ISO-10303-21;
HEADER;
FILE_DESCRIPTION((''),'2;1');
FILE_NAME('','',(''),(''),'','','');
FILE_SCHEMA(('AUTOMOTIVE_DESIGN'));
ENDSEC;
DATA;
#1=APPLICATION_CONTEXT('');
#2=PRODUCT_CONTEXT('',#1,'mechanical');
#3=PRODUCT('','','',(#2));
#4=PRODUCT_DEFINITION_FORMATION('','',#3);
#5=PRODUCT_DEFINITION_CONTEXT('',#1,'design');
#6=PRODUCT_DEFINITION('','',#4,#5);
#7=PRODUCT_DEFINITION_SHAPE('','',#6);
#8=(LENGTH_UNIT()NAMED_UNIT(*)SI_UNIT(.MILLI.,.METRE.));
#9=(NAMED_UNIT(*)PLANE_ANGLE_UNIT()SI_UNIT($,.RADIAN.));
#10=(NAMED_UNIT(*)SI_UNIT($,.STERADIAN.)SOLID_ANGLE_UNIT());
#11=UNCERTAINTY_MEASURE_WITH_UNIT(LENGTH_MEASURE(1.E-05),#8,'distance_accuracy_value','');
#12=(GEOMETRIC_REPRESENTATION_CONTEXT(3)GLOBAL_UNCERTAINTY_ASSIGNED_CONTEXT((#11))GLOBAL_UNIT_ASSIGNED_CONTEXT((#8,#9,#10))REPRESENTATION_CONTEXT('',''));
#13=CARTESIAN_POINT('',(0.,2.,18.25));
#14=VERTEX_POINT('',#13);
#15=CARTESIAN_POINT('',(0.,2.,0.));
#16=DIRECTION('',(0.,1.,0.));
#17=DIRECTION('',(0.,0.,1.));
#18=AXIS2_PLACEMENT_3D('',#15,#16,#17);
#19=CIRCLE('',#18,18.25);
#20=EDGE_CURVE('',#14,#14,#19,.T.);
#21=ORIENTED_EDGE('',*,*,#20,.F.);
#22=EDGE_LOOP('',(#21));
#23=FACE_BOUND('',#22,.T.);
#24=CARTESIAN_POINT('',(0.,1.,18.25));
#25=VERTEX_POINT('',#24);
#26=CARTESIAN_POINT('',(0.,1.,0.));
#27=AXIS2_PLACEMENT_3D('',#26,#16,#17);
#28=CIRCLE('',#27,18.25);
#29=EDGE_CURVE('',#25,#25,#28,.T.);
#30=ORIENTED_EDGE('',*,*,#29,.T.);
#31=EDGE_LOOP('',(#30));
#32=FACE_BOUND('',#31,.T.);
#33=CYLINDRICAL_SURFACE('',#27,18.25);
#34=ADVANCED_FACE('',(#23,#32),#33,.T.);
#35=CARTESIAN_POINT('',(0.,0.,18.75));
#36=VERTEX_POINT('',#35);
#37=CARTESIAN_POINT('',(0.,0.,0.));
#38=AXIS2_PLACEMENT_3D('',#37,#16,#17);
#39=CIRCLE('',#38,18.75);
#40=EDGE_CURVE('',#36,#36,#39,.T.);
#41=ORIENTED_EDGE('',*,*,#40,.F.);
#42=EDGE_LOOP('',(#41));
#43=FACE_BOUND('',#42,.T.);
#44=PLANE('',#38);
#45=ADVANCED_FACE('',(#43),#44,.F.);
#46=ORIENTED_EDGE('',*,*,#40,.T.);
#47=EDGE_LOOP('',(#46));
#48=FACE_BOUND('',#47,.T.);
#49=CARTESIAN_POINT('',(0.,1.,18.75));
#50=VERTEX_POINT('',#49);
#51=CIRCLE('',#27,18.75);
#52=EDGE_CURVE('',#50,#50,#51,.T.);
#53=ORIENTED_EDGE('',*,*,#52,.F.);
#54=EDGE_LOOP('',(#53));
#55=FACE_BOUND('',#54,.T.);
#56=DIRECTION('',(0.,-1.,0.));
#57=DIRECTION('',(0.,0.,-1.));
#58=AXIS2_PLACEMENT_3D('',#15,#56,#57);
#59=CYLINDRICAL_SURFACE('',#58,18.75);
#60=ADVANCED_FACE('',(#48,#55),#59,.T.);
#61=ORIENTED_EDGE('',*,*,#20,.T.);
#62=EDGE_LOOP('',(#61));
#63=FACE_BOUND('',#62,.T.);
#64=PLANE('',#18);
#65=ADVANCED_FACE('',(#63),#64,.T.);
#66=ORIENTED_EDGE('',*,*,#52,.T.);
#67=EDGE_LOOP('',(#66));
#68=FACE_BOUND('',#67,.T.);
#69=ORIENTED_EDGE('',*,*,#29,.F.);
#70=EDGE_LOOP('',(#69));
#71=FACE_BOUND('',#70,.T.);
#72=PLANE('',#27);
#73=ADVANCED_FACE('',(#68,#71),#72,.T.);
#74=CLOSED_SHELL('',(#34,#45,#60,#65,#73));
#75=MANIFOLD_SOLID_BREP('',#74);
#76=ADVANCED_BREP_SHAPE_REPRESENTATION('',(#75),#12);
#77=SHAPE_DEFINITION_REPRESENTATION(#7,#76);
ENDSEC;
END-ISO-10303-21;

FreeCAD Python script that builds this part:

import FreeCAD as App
import Part
import Sketcher
from FreeCAD import Vector
Q = App.Units.Quantity

doc = App.newDocument("Part")
body = doc.addObject("PartDesign::Body", "Body")

sketch1 = body.newObject("Sketcher::SketchObject", "Sketch")
sketch1.AttachmentSupport = (doc.getObject("XZ_Plane"), [""])
sketch1.MapMode = "FlatFace"
sketch1.addGeometry(Part.Circle(Vector(0, 0, 0), Vector(0, 0, 1), 18.75), False)
sketch1.addConstraint(Sketcher.Constraint("Coincident", 0, 3, -1, 1))
sketch1.addConstraint(Sketcher.Constraint("Diameter", 0, Q("37.5 mm")))
pad1 = body.newObject("PartDesign::Pad", "Pad")
pad1.Profile = sketch1
pad1.Length = 2
pad1.Reversed = True

sketch2 = body.newObject("Sketcher::SketchObject", "Sketch001")
sketch2.AttachmentSupport = (doc.getObject("XZ_Plane"), [""])
sketch2.MapMode = "FlatFace"
sketch2.AttachmentOffset = App.Placement(Vector(0, 0, -2), App.Rotation())
sketch2.addGeometry(Part.LineSegment(Vector(-25.057, -25.057, 0), Vector(-25.057, 25.057, 0)), False)
sketch2.addGeometry(Part.LineSegment(Vector(-25.057, 25.057, 0), Vector(25.057, 25.057, 0)), False)
sketch2.addGeometry(Part.LineSegment(Vector(25.057, 25.057, 0), Vector(25.057, -25.057, 0)), False)
sketch2.addGeometry(Part.LineSegment(Vector(25.057, -25.057, 0), Vector(-25.057, -25.057, 0)), False)
sketch2.addGeometry(Part.Circle(Vector(0, 0, 0), Vector(0, 0, 1), 18.25), False)
sketch2.addConstraint(Sketcher.Constraint("Coincident", 0, 2, 1, 1))
sketch2.addConstraint(Sketcher.Constraint("Coincident", 1, 2, 2, 1))
sketch2.addConstraint(Sketcher.Constraint("Coincident", 2, 2, 3, 1))
sketch2.addConstraint(Sketcher.Constraint("Coincident", 3, 2, 0, 1))
sketch2.addConstraint(Sketcher.Constraint("Vertical", 0))
sketch2.addConstraint(Sketcher.Constraint("Horizontal", 1))
sketch2.addConstraint(Sketcher.Constraint("Vertical", 2))
sketch2.addConstraint(Sketcher.Constraint("Horizontal", 3))
sketch2.addConstraint(Sketcher.Constraint("Coincident", 4, 3, -1, 1))
sketch2.addConstraint(Sketcher.Constraint("Symmetric", 0, 2, 2, 2, -1, 1))
sketch2.addConstraint(Sketcher.Constraint("Equal", 3, 0))
sketch2.addConstraint(Sketcher.Constraint("Diameter", 4, Q("36.5 mm")))
sketch2.addConstraint(Sketcher.Constraint("DistanceX", 1, 1, 1, 2, Q("50.114 mm")))
pocket1 = body.newObject("PartDesign::Pocket", "Pocket")
pocket1.Profile = sketch2
pocket1.Length = 1
pocket1.Reversed = True

doc.recompute()
